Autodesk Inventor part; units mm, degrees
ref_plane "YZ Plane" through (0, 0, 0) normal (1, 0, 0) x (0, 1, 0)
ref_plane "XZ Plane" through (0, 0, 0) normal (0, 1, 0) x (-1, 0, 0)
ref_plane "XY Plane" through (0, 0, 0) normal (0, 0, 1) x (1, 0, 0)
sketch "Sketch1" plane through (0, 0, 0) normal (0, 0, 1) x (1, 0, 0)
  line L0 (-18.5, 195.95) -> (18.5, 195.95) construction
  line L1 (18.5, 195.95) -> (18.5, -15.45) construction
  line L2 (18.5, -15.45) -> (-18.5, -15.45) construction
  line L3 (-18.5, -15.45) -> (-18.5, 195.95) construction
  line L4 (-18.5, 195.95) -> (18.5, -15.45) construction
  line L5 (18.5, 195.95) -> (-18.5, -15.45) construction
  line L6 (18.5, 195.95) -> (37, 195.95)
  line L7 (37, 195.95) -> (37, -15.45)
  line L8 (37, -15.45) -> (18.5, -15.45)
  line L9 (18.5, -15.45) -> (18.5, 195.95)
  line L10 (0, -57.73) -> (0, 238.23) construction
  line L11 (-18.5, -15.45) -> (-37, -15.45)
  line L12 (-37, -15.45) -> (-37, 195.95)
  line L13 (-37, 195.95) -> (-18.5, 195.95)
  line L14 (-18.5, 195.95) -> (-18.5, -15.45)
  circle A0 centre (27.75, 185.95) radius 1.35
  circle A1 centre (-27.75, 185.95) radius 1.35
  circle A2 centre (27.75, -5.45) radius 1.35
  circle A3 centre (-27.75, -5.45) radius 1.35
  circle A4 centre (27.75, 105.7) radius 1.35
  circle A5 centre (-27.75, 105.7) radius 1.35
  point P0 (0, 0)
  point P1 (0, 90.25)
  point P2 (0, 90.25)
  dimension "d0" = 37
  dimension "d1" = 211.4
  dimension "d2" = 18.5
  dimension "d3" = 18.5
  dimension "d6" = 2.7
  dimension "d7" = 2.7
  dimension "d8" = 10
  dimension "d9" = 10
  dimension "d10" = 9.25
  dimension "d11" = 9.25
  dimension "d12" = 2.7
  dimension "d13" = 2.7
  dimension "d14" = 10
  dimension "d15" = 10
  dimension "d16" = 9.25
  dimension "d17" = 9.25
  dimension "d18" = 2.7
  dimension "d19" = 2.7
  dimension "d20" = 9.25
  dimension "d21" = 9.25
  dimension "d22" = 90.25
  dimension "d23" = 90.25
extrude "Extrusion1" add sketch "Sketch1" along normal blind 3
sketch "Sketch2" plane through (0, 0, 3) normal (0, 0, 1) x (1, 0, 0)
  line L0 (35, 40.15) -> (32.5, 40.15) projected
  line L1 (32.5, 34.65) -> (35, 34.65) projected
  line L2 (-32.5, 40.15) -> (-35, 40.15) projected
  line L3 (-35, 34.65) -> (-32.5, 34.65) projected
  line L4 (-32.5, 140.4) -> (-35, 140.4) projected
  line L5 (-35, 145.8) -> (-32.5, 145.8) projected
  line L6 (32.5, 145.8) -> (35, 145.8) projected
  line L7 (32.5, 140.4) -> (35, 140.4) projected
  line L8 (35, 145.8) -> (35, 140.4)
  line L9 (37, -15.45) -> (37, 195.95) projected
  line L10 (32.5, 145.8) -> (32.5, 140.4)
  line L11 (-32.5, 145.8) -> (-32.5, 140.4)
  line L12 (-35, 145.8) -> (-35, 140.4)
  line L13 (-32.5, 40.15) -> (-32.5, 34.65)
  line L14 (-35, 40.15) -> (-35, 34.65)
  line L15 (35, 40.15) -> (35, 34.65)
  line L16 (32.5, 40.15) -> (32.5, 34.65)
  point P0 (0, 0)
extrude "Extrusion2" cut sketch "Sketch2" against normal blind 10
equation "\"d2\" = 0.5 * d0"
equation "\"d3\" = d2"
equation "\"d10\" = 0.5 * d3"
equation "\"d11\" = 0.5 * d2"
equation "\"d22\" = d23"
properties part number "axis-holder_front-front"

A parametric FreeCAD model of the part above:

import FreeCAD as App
import Part
import Sketcher

V = App.Vector
Q = App.Units.Quantity


def add_polygon(sketch, points):
    """Adds a closed chain of lines whose ends are joined by coincident constraints."""
    first, n = sketch.GeometryCount, len(points)
    for a, b in zip(points, points[1:] + points[:1]):
        sketch.addGeometry(Part.LineSegment(App.Vector(*a, 0), App.Vector(*b, 0)), False)
    for i in range(n):
        sketch.addConstraint(Sketcher.Constraint("Coincident", first + i, 2, first + (i + 1) % n, 1))

doc = App.newDocument("Part")
body = doc.addObject("PartDesign::Body", "Body")
body.AllowCompound = True

sketch1 = body.newObject("Sketcher::SketchObject", "Sketch")
sketch1.AttachmentSupport = (doc.getObject("XY_Plane"), [""])
sketch1.MapMode = "FlatFace"
add_polygon(sketch1, [(37, 195.9), (18.5, 195.9), (18.5, -15.4), (37, -15.4)])
sketch1.addGeometry(Part.Circle(V(27.8, -5.5, 0), V(0, 0, 1), 1.4), False)
sketch1.addGeometry(Part.Circle(V(27.8, 105.7, 0), V(0, 0, 1), 1.4), False)
sketch1.addGeometry(Part.Circle(V(27.8, 185.9, 0), V(0, 0, 1), 1.4), False)
add_polygon(sketch1, [(-37, -15.4), (-18.5, -15.4), (-18.5, 195.9), (-37, 195.9)])
sketch1.addGeometry(Part.Circle(V(-27.8, -5.5, 0), V(0, 0, 1), 1.4), False)
sketch1.addGeometry(Part.Circle(V(-27.8, 105.7, 0), V(0, 0, 1), 1.4), False)
sketch1.addGeometry(Part.Circle(V(-27.8, 185.9, 0), V(0, 0, 1), 1.4), False)
sketch1.addConstraint(Sketcher.Constraint("Horizontal", 0))
sketch1.addConstraint(Sketcher.Constraint("Vertical", 1))
sketch1.addConstraint(Sketcher.Constraint("Horizontal", 2))
sketch1.addConstraint(Sketcher.Constraint("Vertical", 3))
sketch1.addConstraint(Sketcher.Constraint("Horizontal", 7))
sketch1.addConstraint(Sketcher.Constraint("Vertical", 8))
sketch1.addConstraint(Sketcher.Constraint("Horizontal", 9))
sketch1.addConstraint(Sketcher.Constraint("Vertical", 10))
sketch1.addConstraint(Sketcher.Constraint("Equal", 4, 5))
sketch1.addConstraint(Sketcher.Constraint("Equal", 5, 6))
sketch1.addConstraint(Sketcher.Constraint("Equal", 6, 11))
sketch1.addConstraint(Sketcher.Constraint("Equal", 11, 12))
sketch1.addConstraint(Sketcher.Constraint("Equal", 12, 13))
sketch1.addConstraint(Sketcher.Constraint("Symmetric", 4, 3, 11, 3, -2))
sketch1.addConstraint(Sketcher.Constraint("Symmetric", 5, 3, 12, 3, -2))
sketch1.addConstraint(Sketcher.Constraint("Symmetric", 6, 3, 13, 3, -2))
sketch1.addConstraint(Sketcher.Constraint("Symmetric", 1, 2, 7, 2, -2))
sketch1.addConstraint(Sketcher.Constraint("Symmetric", 3, 2, 9, 2, -2))
sketch1.addConstraint(Sketcher.Constraint("Vertical", 4, 3, 5, 3))
sketch1.addConstraint(Sketcher.Constraint("Vertical", 5, 3, 6, 3))
sketch1.addConstraint(Sketcher.Constraint("Diameter", 4, Q("2.7 mm")))
sketch1.addConstraint(Sketcher.Constraint("DistanceX", 0, 2, 0, 1, Q("18.5 mm")))
sketch1.addConstraint(Sketcher.Constraint("DistanceY", 1, 2, 1, 1, Q("211.4 mm")))
sketch1.addConstraint(Sketcher.Constraint("DistanceX", -1, 1, 2, 2, Q("37 mm")))
sketch1.addConstraint(Sketcher.Constraint("DistanceY", 6, 3, 0, 2, Q("10 mm")))
sketch1.addConstraint(Sketcher.Constraint("DistanceY", 1, 2, 4, 3, Q("10 mm")))
sketch1.addConstraint(Sketcher.Constraint("DistanceX", 0, 2, 6, 3, Q("9.25 mm")))
sketch1.addConstraint(Sketcher.Constraint("DistanceY", 5, 3, 0, 2, Q("90.25 mm")))
sketch1.addConstraint(Sketcher.Constraint("DistanceY", -1, 1, 5, 3, Q("105.7 mm")))
pad1 = body.newObject("PartDesign::Pad", "Pad")
pad1.Profile = sketch1
pad1.Length = 3

sketch2 = body.newObject("Sketcher::SketchObject", "Sketch001")
sketch2.AttachmentSupport = (doc.getObject("XY_Plane"), [""])
sketch2.MapMode = "FlatFace"
sketch2.AttachmentOffset = App.Placement(V(0, 0, 3), App.Rotation())
add_polygon(sketch2, [(35, 34.6), (35, 40.1), (32.5, 40.1), (32.5, 34.6)])
add_polygon(sketch2, [(-32.5, 34.6), (-32.5, 40.1), (-35, 40.1), (-35, 34.6)])
add_polygon(sketch2, [(-35, 140.4), (-32.5, 140.4), (-32.5, 145.8), (-35, 145.8)])
add_polygon(sketch2, [(35, 145.8), (32.5, 145.8), (32.5, 140.4), (35, 140.4)])
sketch2.addConstraint(Sketcher.Constraint("Vertical", 0))
sketch2.addConstraint(Sketcher.Constraint("Horizontal", 1))
sketch2.addConstraint(Sketcher.Constraint("Vertical", 2))
sketch2.addConstraint(Sketcher.Constraint("Horizontal", 3))
sketch2.addConstraint(Sketcher.Constraint("Vertical", 4))
sketch2.addConstraint(Sketcher.Constraint("Horizontal", 5))
sketch2.addConstraint(Sketcher.Constraint("Vertical", 6))
sketch2.addConstraint(Sketcher.Constraint("Horizontal", 7))
sketch2.addConstraint(Sketcher.Constraint("Horizontal", 8))
sketch2.addConstraint(Sketcher.Constraint("Vertical", 9))
sketch2.addConstraint(Sketcher.Constraint("Horizontal", 10))
sketch2.addConstraint(Sketcher.Constraint("Vertical", 11))
sketch2.addConstraint(Sketcher.Constraint("Horizontal", 12))
sketch2.addConstraint(Sketcher.Constraint("Vertical", 13))
sketch2.addConstraint(Sketcher.Constraint("Horizontal", 14))
sketch2.addConstraint(Sketcher.Constraint("Vertical", 15))
sketch2.addConstraint(Sketcher.Constraint("Symmetric", 1, 2, 4, 2, -2))
sketch2.addConstraint(Sketcher.Constraint("Symmetric", 3, 2, 6, 2, -2))
sketch2.addConstraint(Sketcher.Constraint("Symmetric", 9, 2, 12, 2, -2))
sketch2.addConstraint(Sketcher.Constraint("Symmetric", 11, 2, 14, 2, -2))
sketch2.addConstraint(Sketcher.Constraint("Vertical", 7, 2, 8, 2))
sketch2.addConstraint(Sketcher.Constraint("Vertical", 6, 2, 10, 2))
sketch2.addConstraint(Sketcher.Constraint("DistanceX", 1, 2, 1, 1, Q("2.5 mm")))
sketch2.addConstraint(Sketcher.Constraint("DistanceY", 0, 1, 0, 2, Q("5.5 mm")))
sketch2.addConstraint(Sketcher.Constraint("DistanceY", 9, 1, 9, 2, Q("5.4 mm")))
sketch2.addConstraint(Sketcher.Constraint("DistanceX", -1, 1, 0, 2, Q("35 mm")))
sketch2.addConstraint(Sketcher.Constraint("DistanceY", -1, 1, 8, 2, Q("140.4 mm")))
sketch2.addConstraint(Sketcher.Constraint("DistanceY", -1, 1, 0, 2, Q("40.15 mm")))
pocket1 = body.newObject("PartDesign::Pocket", "Pocket")
pocket1.Profile = sketch2
pocket1.Length = 10

doc.recompute()
